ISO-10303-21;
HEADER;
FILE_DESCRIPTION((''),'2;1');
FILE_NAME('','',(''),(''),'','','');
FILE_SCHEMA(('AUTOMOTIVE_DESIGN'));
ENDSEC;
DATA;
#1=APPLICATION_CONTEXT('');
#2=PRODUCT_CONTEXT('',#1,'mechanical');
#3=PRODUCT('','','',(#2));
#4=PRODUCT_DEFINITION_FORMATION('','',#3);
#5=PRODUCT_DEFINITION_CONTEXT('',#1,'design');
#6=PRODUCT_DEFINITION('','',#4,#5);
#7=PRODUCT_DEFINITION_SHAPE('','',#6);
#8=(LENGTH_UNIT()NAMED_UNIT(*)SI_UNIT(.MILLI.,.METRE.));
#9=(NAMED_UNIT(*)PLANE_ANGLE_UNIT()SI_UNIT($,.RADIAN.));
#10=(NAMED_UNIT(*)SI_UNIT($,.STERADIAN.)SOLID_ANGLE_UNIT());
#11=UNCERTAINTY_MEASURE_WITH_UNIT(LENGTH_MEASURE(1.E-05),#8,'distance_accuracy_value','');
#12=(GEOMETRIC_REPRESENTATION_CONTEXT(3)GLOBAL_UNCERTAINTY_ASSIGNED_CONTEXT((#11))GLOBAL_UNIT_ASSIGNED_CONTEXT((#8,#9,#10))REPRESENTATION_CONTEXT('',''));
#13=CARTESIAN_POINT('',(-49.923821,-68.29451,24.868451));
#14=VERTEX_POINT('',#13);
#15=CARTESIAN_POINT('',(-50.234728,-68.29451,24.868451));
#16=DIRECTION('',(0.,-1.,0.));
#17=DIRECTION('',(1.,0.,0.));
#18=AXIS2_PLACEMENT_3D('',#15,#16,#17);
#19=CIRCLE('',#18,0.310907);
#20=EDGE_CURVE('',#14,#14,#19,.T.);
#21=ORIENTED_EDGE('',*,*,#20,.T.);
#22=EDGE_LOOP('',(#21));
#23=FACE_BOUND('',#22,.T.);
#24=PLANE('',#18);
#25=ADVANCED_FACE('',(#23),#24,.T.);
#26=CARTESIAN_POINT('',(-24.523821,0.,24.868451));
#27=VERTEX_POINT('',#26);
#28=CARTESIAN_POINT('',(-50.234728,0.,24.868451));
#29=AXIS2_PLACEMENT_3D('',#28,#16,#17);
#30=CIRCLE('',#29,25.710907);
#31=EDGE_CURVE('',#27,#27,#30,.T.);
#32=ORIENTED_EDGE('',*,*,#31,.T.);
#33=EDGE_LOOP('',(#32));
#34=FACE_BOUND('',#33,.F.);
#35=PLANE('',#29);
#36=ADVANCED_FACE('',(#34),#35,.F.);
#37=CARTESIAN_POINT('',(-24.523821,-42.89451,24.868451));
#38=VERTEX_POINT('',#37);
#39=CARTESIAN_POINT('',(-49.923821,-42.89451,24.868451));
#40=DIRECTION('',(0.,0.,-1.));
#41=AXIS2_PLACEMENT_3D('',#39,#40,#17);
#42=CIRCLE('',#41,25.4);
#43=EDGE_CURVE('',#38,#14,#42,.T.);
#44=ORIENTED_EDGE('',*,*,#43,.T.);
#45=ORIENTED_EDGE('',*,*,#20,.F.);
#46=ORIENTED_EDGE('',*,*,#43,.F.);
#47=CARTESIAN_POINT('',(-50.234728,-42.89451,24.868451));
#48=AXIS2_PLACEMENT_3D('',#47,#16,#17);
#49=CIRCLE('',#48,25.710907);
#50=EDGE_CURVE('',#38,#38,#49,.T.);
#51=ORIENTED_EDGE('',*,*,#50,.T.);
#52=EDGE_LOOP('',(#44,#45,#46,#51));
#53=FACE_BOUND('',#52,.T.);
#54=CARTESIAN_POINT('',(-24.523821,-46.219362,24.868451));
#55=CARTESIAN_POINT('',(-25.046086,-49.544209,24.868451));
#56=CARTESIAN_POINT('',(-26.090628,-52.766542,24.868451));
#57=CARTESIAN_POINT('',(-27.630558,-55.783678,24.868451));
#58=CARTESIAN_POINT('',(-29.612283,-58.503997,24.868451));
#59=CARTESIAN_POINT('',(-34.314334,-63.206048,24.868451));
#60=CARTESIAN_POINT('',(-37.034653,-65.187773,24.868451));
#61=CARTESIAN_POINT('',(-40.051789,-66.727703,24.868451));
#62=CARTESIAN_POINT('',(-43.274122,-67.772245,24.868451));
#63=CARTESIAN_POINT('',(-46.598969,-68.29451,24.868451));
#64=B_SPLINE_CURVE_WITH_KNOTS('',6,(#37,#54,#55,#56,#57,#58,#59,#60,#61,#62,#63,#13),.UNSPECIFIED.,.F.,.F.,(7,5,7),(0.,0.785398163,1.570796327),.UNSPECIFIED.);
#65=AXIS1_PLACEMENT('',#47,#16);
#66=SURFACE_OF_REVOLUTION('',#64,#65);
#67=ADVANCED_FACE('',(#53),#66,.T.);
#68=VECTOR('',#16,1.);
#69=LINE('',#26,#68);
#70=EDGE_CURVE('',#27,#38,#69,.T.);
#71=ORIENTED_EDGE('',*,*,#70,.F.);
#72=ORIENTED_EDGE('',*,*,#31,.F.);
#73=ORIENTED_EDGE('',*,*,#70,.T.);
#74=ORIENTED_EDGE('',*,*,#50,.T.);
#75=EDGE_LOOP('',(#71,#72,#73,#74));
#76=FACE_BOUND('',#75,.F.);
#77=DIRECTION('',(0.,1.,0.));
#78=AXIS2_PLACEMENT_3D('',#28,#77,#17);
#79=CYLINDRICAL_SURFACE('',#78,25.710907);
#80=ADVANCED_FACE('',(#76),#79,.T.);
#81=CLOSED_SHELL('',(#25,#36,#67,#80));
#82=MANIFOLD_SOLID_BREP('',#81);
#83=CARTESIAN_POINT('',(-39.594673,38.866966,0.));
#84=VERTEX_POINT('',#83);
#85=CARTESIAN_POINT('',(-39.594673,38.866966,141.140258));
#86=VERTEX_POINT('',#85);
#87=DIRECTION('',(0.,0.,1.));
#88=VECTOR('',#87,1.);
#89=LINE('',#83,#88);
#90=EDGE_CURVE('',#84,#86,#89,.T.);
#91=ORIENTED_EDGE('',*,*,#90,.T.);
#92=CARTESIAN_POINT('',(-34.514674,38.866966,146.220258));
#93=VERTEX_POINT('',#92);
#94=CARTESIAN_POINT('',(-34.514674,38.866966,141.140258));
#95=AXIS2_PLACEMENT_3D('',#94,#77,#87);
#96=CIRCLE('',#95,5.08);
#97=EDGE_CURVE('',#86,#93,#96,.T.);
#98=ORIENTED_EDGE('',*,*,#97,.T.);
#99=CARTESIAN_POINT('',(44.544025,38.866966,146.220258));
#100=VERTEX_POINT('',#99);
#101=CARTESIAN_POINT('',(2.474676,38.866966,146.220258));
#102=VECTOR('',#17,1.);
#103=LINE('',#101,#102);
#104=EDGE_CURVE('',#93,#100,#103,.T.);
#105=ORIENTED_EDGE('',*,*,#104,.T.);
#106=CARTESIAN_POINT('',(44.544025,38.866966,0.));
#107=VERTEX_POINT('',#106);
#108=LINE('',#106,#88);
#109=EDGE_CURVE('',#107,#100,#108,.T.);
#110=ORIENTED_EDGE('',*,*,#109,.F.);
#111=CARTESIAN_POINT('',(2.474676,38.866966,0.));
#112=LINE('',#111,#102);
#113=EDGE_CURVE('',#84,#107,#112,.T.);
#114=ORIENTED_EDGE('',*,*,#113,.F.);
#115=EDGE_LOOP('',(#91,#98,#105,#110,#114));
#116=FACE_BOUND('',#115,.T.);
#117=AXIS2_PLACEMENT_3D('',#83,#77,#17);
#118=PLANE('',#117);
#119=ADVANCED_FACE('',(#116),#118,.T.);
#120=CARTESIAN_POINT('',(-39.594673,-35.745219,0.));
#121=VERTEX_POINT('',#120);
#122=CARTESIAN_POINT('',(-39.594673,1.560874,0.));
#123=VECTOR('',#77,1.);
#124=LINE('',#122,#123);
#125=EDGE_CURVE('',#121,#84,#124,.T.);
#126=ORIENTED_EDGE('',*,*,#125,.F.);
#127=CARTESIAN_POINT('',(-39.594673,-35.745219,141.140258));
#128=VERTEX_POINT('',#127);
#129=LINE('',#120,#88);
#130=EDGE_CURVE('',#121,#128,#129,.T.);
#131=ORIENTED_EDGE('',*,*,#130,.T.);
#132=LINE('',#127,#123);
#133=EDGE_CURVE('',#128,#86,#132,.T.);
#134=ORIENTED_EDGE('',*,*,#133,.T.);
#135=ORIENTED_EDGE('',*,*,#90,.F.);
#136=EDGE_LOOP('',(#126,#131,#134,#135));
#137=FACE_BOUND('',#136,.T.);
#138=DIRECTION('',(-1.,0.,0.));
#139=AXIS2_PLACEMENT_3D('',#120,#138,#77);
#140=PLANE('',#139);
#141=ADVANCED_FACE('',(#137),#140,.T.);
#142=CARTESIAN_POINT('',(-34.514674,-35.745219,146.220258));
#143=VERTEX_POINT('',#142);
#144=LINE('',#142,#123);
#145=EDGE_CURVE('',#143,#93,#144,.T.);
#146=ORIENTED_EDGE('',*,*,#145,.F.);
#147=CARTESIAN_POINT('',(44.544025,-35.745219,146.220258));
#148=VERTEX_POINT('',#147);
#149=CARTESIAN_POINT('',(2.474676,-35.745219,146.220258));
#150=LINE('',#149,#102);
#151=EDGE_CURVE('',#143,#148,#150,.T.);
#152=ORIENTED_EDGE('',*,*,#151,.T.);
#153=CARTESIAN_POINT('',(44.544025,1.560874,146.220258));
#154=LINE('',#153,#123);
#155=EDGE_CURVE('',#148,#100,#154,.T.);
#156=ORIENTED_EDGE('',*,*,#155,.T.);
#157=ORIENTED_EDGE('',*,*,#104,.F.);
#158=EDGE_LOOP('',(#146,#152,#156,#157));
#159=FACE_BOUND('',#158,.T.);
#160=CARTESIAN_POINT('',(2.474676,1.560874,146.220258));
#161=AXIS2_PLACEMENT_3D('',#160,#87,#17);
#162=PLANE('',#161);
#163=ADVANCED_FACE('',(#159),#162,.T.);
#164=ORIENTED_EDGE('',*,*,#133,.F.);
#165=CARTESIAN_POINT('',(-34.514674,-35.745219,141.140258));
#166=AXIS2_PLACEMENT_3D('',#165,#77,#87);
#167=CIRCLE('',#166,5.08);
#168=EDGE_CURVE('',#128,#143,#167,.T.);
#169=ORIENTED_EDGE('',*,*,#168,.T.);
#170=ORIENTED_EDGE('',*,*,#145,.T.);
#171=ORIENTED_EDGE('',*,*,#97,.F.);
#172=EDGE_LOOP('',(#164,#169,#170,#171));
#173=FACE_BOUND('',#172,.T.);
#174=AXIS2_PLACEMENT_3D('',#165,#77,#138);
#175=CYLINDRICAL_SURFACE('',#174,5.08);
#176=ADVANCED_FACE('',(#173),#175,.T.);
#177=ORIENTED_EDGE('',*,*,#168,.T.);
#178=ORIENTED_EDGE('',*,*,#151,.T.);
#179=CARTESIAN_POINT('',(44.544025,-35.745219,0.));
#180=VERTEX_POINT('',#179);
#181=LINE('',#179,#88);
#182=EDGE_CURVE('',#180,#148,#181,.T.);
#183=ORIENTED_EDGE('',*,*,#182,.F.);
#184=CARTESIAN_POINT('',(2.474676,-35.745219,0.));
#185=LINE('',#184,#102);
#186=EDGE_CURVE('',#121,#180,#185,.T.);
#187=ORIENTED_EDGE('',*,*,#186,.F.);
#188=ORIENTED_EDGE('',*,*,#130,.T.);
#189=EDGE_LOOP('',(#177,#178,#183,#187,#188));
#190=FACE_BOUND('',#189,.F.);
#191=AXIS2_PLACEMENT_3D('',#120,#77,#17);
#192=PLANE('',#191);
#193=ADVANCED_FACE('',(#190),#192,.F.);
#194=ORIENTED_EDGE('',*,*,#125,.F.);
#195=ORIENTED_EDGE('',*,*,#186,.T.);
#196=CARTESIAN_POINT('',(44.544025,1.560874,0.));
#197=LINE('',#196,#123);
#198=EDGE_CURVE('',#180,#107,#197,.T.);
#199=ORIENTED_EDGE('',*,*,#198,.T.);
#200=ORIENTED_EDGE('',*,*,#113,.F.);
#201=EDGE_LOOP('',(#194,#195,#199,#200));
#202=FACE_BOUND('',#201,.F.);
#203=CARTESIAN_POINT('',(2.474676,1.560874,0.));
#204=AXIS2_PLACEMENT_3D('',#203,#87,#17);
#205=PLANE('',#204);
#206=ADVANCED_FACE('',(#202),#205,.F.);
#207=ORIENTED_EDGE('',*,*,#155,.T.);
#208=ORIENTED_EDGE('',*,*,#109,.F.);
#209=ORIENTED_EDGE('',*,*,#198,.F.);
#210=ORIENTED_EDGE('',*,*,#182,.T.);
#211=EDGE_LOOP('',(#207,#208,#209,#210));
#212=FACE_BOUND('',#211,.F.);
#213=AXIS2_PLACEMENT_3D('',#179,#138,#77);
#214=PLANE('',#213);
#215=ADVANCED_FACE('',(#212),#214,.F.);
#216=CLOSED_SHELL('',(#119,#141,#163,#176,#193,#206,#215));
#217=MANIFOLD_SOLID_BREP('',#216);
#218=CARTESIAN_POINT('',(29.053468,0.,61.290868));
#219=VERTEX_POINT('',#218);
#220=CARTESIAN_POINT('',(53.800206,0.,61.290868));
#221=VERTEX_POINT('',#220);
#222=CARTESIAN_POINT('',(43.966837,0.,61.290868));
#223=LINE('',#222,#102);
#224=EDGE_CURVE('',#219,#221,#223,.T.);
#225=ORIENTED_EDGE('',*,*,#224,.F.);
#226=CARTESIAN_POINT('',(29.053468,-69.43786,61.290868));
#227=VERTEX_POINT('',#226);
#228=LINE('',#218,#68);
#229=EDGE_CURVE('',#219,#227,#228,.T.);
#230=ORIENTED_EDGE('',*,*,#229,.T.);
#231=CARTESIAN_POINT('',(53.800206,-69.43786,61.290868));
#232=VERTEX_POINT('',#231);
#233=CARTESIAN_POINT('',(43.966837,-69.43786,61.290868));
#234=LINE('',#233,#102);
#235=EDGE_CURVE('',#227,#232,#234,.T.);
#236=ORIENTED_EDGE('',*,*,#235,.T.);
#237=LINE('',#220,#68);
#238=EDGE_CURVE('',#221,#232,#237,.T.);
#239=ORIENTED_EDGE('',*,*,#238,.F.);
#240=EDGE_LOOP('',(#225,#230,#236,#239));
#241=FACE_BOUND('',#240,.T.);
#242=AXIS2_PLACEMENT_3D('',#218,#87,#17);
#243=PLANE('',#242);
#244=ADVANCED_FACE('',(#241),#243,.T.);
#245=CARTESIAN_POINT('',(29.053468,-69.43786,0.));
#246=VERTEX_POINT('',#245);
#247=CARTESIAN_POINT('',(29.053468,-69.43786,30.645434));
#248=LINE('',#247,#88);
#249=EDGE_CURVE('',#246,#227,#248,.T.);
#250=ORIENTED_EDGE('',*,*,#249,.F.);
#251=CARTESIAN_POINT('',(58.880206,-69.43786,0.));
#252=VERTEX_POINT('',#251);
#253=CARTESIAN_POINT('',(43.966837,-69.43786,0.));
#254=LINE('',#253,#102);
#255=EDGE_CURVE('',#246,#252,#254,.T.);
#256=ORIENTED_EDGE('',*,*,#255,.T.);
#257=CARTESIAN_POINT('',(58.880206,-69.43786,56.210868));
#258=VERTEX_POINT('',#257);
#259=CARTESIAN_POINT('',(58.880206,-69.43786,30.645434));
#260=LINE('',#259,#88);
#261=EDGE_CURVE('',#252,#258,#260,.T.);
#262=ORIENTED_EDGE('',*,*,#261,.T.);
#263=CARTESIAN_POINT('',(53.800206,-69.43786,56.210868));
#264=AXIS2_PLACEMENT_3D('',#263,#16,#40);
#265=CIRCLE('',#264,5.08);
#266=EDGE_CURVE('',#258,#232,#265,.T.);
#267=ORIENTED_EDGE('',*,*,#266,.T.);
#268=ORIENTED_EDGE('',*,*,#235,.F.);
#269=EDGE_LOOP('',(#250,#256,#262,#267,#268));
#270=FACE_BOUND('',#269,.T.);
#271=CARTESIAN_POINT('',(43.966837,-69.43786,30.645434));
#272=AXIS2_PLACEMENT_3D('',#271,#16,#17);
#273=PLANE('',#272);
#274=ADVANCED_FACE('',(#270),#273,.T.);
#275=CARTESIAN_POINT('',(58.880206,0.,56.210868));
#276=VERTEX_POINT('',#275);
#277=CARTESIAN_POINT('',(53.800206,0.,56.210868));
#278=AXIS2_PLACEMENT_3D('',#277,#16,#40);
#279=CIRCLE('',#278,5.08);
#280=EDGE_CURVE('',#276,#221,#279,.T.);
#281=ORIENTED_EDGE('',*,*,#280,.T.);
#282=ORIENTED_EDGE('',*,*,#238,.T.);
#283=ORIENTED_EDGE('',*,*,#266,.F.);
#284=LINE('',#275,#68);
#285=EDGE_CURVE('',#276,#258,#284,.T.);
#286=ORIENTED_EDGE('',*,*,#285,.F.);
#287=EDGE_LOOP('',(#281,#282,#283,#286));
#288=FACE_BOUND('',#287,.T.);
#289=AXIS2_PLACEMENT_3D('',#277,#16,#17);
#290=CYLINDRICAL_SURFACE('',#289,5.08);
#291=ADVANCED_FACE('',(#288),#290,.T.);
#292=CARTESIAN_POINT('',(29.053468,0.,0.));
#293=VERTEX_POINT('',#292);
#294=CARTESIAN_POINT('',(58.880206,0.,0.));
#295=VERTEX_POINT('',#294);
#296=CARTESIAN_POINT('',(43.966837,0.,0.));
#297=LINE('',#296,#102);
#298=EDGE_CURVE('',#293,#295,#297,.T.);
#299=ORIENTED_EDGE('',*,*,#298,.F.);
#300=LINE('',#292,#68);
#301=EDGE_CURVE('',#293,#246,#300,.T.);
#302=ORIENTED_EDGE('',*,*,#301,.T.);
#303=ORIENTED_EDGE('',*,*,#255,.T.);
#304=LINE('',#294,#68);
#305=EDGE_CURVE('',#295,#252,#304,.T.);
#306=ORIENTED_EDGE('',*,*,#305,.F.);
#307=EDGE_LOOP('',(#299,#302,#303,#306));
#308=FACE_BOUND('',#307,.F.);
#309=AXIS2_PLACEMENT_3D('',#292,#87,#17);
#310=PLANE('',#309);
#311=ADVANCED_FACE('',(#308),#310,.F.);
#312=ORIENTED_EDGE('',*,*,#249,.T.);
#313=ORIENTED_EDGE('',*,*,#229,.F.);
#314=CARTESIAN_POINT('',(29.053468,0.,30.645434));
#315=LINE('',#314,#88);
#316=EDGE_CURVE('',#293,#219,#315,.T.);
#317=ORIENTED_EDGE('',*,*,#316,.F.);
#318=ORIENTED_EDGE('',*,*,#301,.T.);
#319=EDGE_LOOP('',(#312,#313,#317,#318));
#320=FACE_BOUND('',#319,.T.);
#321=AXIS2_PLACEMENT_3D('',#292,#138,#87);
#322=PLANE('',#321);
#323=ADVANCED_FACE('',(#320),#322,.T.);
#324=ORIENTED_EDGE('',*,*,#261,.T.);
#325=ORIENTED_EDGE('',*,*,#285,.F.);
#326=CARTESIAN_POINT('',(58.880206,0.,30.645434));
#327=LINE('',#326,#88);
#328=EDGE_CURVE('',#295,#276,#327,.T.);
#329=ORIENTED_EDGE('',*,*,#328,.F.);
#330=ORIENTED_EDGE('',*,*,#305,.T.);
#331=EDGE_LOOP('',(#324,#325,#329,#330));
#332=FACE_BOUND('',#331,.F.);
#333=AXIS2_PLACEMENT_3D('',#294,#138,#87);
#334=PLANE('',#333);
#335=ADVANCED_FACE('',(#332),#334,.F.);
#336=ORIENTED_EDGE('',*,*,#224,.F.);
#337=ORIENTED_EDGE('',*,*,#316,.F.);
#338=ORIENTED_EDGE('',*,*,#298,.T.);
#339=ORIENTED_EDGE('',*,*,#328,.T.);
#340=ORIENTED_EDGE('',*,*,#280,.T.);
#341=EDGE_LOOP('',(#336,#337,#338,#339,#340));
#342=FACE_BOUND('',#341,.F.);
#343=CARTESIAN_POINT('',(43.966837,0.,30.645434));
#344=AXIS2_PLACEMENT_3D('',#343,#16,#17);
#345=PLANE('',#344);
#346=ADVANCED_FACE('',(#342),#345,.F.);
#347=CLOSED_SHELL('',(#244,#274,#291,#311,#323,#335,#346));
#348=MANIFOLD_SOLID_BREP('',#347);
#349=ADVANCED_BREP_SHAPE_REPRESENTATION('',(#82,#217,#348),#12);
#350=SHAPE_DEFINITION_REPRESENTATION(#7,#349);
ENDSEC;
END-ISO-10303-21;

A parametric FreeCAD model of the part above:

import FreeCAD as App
import Part
import Sketcher

V = App.Vector
Q = App.Units.Quantity


def edges_at(feature, points):
    """Names of the edges that pass closest to the given points."""
    edges = feature.Shape.Edges
    near = lambda p: min(range(len(edges)), key=lambda i: edges[i].distToShape(Part.Vertex(*p))[0])
    return sorted({f"Edge{near(p) + 1}" for p in points})


def add_polygon(sketch, points):
    """Adds a closed chain of lines whose ends are joined by coincident constraints."""
    first, n = sketch.GeometryCount, len(points)
    for a, b in zip(points, points[1:] + points[:1]):
        sketch.addGeometry(Part.LineSegment(App.Vector(*a, 0), App.Vector(*b, 0)), False)
    for i in range(n):
        sketch.addConstraint(Sketcher.Constraint("Coincident", first + i, 2, first + (i + 1) % n, 1))

doc = App.newDocument("Part")
params = doc.addObject("Spreadsheet::Sheet", "Params")
for row, (alias, value) in enumerate([
    ("pad1_length", "69.43786 mm"),
    ("fillet_radius", "0.2 in"),
    ("pad2_length", "68.29451 mm"),
    ("fillet2_radius", "1 in"),
    ("pad3_length", "146.220258 mm"),
    ("fillet3_radius", "0.2 in"),
], start=1):
    params.set(f"A{row}", alias)
    params.set(f"B{row}", "=" + value)
    params.setAlias(f"B{row}", alias)

body = doc.addObject("PartDesign::Body", "Body")

# Sketch on XZ plane
sketch1 = body.newObject("Sketcher::SketchObject", "Sketch")
sketch1.AttachmentSupport = (doc.getObject("XZ_Plane"), [""])
sketch1.MapMode = "FlatFace"
add_polygon(sketch1, [(29.053468, 61.290868), (29.053468, 0), (58.880206, 0), (58.880206, 61.290868)])  # lines 0-3
sketch1.addConstraint([
    Sketcher.Constraint("Vertical", 0),
    Sketcher.Constraint("Horizontal", 1),
    Sketcher.Constraint("Vertical", 2),
    Sketcher.Constraint("Horizontal", 3),
    Sketcher.Constraint("PointOnObject", 0, 2, -1),
    Sketcher.Constraint("DistanceX", 1, 1, 1, 2, Q("29.826738 mm")),
    Sketcher.Constraint("DistanceY", 0, 2, 0, 1, Q("61.290868 mm")),
    Sketcher.Constraint("DistanceX", -1, 1, 0, 2, Q("29.053468 mm")),
])
pad1 = body.newObject("PartDesign::Pad", "Pad")
pad1.Profile = sketch1
pad1.setExpression("Length", "Params.pad1_length")
doc.recompute()

fillet = body.newObject("PartDesign::Fillet", "Fillet")
fillet.Base = (pad1, edges_at(pad1, [(58.88, -34.719, 61.291)]))
fillet.setExpression("Radius", "Params.fillet_radius")
body2 = doc.addObject("PartDesign::Body", "Body001")

# Sketch on XZ plane
sketch2 = body2.newObject("Sketcher::SketchObject", "Sketch001")
sketch2.AttachmentSupport = (doc.getObject("XZ_Plane001"), [""])
sketch2.MapMode = "FlatFace"
sketch2.addGeometry(Part.Circle(V(-50.234728, 24.868451, 0), V(0, 0, 1), 25.710907), False)
sketch2.addConstraint([
    Sketcher.Constraint("Diameter", 0, Q("51.421814 mm")),
    Sketcher.Constraint("DistanceY", -1, 1, 0, 3, Q("24.868451 mm")),
    Sketcher.Constraint("DistanceX", 0, 3, -1, 1, Q("50.234728 mm")),
])
pad2 = body2.newObject("PartDesign::Pad", "Pad001")
pad2.Profile = sketch2
pad2.setExpression("Length", "Params.pad2_length")
doc.recompute()

fillet2 = body2.newObject("PartDesign::Fillet", "Fillet001")
fillet2.Base = (pad2, edges_at(pad2, [(-75.946, -68.295, 24.868)]))
fillet2.setExpression("Radius", "Params.fillet2_radius")
body3 = doc.addObject("PartDesign::Body", "Body002")

# Sketch on XY plane
sketch3 = body3.newObject("Sketcher::SketchObject", "Sketch002")
sketch3.AttachmentSupport = (doc.getObject("XY_Plane002"), [""])
sketch3.MapMode = "FlatFace"
add_polygon(sketch3, [(-39.594673, 38.866966), (-39.594673, -35.745219), (44.544025, -35.745219), (44.544025, 38.866966)])  # lines 0-3
sketch3.addConstraint([
    Sketcher.Constraint("Vertical", 0),
    Sketcher.Constraint("Horizontal", 1),
    Sketcher.Constraint("Vertical", 2),
    Sketcher.Constraint("Horizontal", 3),
    Sketcher.Constraint("DistanceX", 1, 1, 1, 2, Q("84.138699 mm")),
    Sketcher.Constraint("DistanceY", 0, 2, 0, 1, Q("74.612185 mm")),
    Sketcher.Constraint("DistanceY", 0, 2, -1, 1, Q("35.745219 mm")),
    Sketcher.Constraint("DistanceX", 0, 2, -1, 1, Q("39.594673 mm")),
])
pad3 = body3.newObject("PartDesign::Pad", "Pad002")
pad3.Profile = sketch3
pad3.setExpression("Length", "Params.pad3_length")
doc.recompute()

fillet3 = body3.newObject("PartDesign::Fillet", "Fillet002")
fillet3.Base = (pad3, edges_at(pad3, [(-39.595, 1.561, 146.22)]))
fillet3.setExpression("Radius", "Params.fillet3_radius")

doc.recompute()
